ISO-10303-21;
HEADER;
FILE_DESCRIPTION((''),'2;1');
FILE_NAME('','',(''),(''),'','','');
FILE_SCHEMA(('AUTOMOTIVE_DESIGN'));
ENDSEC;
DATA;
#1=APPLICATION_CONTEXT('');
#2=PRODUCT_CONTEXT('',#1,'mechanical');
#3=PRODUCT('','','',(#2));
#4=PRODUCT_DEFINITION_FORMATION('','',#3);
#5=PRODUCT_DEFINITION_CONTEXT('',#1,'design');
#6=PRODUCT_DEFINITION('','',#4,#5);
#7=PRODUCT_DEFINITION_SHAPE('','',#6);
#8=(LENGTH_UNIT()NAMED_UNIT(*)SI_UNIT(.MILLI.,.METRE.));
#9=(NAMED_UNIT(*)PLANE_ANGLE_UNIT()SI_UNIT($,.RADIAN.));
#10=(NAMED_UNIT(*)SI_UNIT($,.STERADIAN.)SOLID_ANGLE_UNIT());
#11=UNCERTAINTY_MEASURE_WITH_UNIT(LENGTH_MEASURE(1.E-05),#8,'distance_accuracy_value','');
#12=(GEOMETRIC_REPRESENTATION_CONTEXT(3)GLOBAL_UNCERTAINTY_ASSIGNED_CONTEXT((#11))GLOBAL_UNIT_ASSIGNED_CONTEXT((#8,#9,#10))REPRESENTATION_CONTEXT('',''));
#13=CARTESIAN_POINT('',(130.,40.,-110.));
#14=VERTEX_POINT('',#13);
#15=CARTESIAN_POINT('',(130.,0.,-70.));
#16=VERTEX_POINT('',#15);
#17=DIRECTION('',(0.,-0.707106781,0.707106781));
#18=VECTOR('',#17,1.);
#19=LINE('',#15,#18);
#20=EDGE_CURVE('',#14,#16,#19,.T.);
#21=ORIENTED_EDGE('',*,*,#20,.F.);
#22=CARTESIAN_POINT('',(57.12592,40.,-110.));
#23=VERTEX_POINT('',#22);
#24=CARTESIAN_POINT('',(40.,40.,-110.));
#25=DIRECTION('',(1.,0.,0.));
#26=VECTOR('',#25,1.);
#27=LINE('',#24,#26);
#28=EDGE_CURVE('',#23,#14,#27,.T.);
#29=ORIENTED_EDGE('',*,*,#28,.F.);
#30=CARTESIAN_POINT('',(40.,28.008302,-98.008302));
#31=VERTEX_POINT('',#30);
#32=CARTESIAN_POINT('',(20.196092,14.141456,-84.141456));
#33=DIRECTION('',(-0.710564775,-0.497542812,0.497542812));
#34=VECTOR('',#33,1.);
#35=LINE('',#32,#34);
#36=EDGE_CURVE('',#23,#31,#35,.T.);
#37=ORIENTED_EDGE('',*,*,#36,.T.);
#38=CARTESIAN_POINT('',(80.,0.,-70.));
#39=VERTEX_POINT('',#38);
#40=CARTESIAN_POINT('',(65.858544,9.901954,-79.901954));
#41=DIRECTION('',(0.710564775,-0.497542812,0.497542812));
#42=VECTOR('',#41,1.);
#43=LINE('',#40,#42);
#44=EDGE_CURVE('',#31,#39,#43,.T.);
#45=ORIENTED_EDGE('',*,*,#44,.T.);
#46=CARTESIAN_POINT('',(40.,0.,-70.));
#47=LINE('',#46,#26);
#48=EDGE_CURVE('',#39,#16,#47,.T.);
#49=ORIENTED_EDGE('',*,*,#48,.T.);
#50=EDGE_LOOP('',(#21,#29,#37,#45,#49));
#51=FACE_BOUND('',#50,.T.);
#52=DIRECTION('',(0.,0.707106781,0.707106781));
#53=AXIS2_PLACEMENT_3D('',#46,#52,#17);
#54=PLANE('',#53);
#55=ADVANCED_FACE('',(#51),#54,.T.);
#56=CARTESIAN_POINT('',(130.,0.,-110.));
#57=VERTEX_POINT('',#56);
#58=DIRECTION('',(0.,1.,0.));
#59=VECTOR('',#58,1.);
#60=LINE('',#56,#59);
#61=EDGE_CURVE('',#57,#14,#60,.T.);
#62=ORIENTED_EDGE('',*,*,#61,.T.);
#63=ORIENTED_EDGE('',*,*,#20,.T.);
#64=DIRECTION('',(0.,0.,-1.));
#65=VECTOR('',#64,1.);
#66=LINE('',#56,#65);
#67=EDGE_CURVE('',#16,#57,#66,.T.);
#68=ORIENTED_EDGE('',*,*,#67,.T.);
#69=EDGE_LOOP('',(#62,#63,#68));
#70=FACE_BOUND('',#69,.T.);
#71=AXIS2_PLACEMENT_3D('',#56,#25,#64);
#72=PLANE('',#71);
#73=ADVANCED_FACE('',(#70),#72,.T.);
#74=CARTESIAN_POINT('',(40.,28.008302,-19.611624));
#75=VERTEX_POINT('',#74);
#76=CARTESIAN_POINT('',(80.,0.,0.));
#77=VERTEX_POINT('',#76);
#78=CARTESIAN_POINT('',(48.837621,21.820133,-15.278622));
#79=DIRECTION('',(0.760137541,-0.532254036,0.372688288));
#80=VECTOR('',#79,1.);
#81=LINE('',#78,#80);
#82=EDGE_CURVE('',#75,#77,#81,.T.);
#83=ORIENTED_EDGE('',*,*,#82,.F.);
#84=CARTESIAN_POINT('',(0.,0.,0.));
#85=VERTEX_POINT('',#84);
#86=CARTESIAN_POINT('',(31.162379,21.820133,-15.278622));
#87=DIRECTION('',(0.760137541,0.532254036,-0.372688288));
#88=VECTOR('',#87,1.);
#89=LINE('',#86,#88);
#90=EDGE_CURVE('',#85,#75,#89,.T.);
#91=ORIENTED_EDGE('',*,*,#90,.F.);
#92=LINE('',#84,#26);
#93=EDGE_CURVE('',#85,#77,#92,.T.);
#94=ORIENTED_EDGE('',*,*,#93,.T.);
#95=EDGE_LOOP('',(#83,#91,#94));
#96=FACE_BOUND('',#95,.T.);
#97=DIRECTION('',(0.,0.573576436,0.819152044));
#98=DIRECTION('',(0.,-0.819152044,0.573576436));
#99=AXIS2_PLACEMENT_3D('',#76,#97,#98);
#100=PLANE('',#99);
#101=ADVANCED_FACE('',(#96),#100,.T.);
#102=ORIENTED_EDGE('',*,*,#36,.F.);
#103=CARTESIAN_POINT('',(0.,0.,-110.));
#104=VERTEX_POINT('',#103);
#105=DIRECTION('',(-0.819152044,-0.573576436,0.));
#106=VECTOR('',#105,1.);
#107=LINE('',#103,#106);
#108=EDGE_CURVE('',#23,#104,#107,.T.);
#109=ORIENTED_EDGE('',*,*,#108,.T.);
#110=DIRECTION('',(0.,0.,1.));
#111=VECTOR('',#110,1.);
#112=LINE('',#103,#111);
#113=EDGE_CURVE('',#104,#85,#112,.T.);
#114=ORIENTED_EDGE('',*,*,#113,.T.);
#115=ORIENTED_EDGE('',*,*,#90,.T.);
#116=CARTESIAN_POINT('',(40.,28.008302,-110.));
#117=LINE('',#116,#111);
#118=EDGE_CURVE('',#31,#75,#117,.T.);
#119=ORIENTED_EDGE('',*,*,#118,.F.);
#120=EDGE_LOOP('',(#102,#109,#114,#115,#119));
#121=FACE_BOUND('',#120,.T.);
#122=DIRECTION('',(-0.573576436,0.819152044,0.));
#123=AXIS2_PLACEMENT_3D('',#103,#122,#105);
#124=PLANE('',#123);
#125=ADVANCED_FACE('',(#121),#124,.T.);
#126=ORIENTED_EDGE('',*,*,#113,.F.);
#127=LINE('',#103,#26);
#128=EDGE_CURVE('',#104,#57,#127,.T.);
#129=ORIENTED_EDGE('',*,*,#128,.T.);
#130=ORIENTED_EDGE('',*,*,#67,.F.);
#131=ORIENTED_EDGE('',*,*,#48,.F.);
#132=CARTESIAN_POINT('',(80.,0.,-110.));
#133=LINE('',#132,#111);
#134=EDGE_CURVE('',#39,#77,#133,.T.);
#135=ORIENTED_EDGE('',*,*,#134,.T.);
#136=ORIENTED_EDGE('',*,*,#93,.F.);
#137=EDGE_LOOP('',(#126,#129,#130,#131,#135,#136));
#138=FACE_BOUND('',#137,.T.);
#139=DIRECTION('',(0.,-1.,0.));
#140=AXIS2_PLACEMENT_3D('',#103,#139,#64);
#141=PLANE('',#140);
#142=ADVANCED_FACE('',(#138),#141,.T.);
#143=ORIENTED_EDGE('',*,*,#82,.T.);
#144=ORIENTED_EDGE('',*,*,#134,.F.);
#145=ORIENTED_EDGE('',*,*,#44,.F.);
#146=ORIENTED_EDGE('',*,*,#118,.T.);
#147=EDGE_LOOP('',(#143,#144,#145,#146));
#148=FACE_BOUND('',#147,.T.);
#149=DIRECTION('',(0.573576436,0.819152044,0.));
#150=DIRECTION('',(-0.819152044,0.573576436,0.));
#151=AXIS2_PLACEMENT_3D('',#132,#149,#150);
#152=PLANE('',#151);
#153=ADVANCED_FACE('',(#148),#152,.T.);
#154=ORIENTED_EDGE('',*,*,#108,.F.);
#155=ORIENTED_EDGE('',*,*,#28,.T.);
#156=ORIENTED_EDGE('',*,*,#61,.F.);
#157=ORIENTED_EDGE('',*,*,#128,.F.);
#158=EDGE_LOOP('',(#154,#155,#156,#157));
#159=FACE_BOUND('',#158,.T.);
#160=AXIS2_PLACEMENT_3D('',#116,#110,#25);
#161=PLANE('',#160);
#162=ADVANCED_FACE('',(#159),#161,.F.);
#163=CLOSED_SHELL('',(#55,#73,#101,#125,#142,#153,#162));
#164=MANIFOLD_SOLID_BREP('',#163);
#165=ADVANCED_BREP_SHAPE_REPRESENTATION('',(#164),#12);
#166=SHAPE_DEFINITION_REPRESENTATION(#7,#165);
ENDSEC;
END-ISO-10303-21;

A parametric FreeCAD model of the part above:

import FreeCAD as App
import Part
import Sketcher

V = App.Vector
Q = App.Units.Quantity

doc = App.newDocument("Part")
body = doc.addObject("PartDesign::Body", "Body")

# Sketch on XY plane
sketch1 = doc.addObject("Sketcher::SketchObject", "Sketch")
body.addObject(sketch1)
sketch1.AttachmentSupport = (doc.XY_Plane, [""])
sketch1.MapMode = "FlatFace"
sketch1.addGeometry(Part.LineSegment(V(0, 0, 0), V(80, 0, 0)), False)
sketch1.addGeometry(Part.LineSegment(V(80, 0, 0), V(40, 28, 0)), False)
sketch1.addGeometry(Part.LineSegment(V(40, 28, 0), V(0, 0, 0)), False)
sketch1.addConstraint(Sketcher.Constraint("Coincident", 0, 2, 1, 1))
sketch1.addConstraint(Sketcher.Constraint("Coincident", 1, 2, 2, 1))
sketch1.addConstraint(Sketcher.Constraint("Coincident", 2, 2, 0, 1))
sketch1.addConstraint(Sketcher.Constraint("Horizontal", 0))
sketch1.addConstraint(Sketcher.Constraint("Coincident", 2, 2, -1, 1))
sketch1.addConstraint(Sketcher.Constraint("Equal", 1, 2))
sketch1.addConstraint(Sketcher.Constraint("DistanceX", 0, 1, 0, 2, Q("80 mm")))
sketch1.addConstraint(Sketcher.Constraint("Angle", 1, Q("145 deg")))
pad1 = doc.addObject("PartDesign::Pad", "Pad")
body.addObject(pad1)
pad1.Profile = sketch1
pad1.Length = 110
pad1.Reversed = True

# Sketch on YZ plane
sketch2 = doc.addObject("Sketcher::SketchObject", "Sketch001")
body.addObject(sketch2)
sketch2.AttachmentSupport = (doc.YZ_Plane, [""])
sketch2.MapMode = "FlatFace"
sketch2.addGeometry(Part.LineSegment(V(0, 0, 0), V(28, -20, 0)), False)
sketch2.addGeometry(Part.LineSegment(V(28, -20, 0), V(28, 0, 0)), False)
sketch2.addGeometry(Part.LineSegment(V(28, 0, 0), V(0, 0, 0)), False)
sketch2.addConstraint(Sketcher.Constraint("Coincident", 0, 2, 1, 1))
sketch2.addConstraint(Sketcher.Constraint("Coincident", 1, 2, 2, 1))
sketch2.addConstraint(Sketcher.Constraint("Coincident", 2, 2, 0, 1))
sketch2.addConstraint(Sketcher.Constraint("Vertical", 1))
sketch2.addConstraint(Sketcher.Constraint("Horizontal", 2))
sketch2.addConstraint(Sketcher.Constraint("Coincident", 2, 2, -1, 1))
sketch2.addConstraint(Sketcher.Constraint("Angle", 0, Q("-35 deg")))
sketch2.addConstraint(Sketcher.Constraint("DistanceX", 2, 2, 2, 1, Q("28.008302 mm")))
pocket1 = doc.addObject("PartDesign::Pocket", "Pocket")
body.addObject(pocket1)
pocket1.Profile = sketch2
pocket1.Type = "ThroughAll"
pocket1.Reversed = True

# Sketch on YZ plane
sketch3 = doc.addObject("Sketcher::SketchObject", "Sketch002")
body.addObject(sketch3)
sketch3.AttachmentSupport = (doc.YZ_Plane, [""])
sketch3.MapMode = "FlatFace"
sketch3.AttachmentOffset = App.Placement(V(0, 0, 130), App.Rotation())
sketch3.addGeometry(Part.LineSegment(V(0, -70, 0), V(0, -110, 0)), False)
sketch3.addGeometry(Part.LineSegment(V(0, -110, 0), V(40, -110, 0)), False)
sketch3.addGeometry(Part.LineSegment(V(40, -110, 0), V(0, -70, 0)), False)
sketch3.addConstraint(Sketcher.Constraint("Coincident", 0, 2, 1, 1))
sketch3.addConstraint(Sketcher.Constraint("Coincident", 1, 2, 2, 1))
sketch3.addConstraint(Sketcher.Constraint("Coincident", 2, 2, 0, 1))
sketch3.addConstraint(Sketcher.Constraint("Vertical", 0))
sketch3.addConstraint(Sketcher.Constraint("Horizontal", 1))
sketch3.addConstraint(Sketcher.Constraint("PointOnObject", 0, 2, -2))
sketch3.addConstraint(Sketcher.Constraint("Equal", 1, 0))
sketch3.addConstraint(Sketcher.Constraint("DistanceX", 1, 1, 1, 2, Q("40 mm")))
sketch3.addConstraint(Sketcher.Constraint("DistanceY", 0, 2, -1, 1, Q("110 mm")))
pad2 = doc.addObject("PartDesign::Pad", "Pad001")
body.addObject(pad2)
pad2.Profile = sketch3
pad2.Length = 90
pad2.Reversed = True

# Sketch on an angled plane
sketch4 = doc.addObject("Sketcher::SketchObject", "Sketch003")
body.addObject(sketch4)
sketch4.Placement = App.Placement(V(0, 0, 0), App.Rotation(V(-0.819152044, -0.573576436, 0), V(0, 0, 0.999999999), V(-0.573576436, 0.819152044, 0), "ZXY"))
sketch4.addGeometry(Part.LineSegment(V(-72, -76, 0), V(-72, -110, 0)), False)
sketch4.addGeometry(Part.LineSegment(V(-72, -110, 0), V(0, -110, 0)), False)
sketch4.addGeometry(Part.LineSegment(V(0, -110, 0), V(0, -76, 0)), False)
sketch4.addGeometry(Part.LineSegment(V(0, -76, 0), V(-72, -76, 0)), False)
sketch4.addConstraint(Sketcher.Constraint("Coincident", 0, 2, 1, 1))
sketch4.addConstraint(Sketcher.Constraint("Coincident", 1, 2, 2, 1))
sketch4.addConstraint(Sketcher.Constraint("Coincident", 2, 2, 3, 1))
sketch4.addConstraint(Sketcher.Constraint("Coincident", 3, 2, 0, 1))
sketch4.addConstraint(Sketcher.Constraint("Vertical", 0))
sketch4.addConstraint(Sketcher.Constraint("Horizontal", 1))
sketch4.addConstraint(Sketcher.Constraint("Vertical", 2))
sketch4.addConstraint(Sketcher.Constraint("Horizontal", 3))
sketch4.addConstraint(Sketcher.Constraint("PointOnObject", 1, 2, -2))
sketch4.addConstraint(Sketcher.Constraint("DistanceY", 0, 2, -1, 1, Q("110 mm")))
sketch4.addConstraint(Sketcher.Constraint("DistanceX", 1, 1, 1, 2, Q("71.560195 mm")))
sketch4.addConstraint(Sketcher.Constraint("DistanceY", 0, 2, 0, 1, Q("34.192707 mm")))
pocket2 = doc.addObject("PartDesign::Pocket", "Pocket001")
body.addObject(pocket2)
pocket2.Profile = sketch4
pocket2.Length = 10
pocket2.Reversed = True

doc.recompute()
